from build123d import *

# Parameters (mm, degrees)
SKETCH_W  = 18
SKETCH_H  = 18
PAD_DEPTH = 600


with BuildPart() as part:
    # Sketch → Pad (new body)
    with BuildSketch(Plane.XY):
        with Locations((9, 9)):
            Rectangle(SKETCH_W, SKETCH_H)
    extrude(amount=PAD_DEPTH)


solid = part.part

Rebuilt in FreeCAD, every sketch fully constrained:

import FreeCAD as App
import Part
import Sketcher

doc = App.newDocument("Part")
body = doc.addObject("PartDesign::Body", "Body")

# Sketch on XY plane
sketch1 = doc.addObject("Sketcher::SketchObject", "Sketch")
body.addObject(sketch1)
sketch1.AttachmentSupport = (doc.XY_Plane, [""])
sketch1.MapMode = "FlatFace"
sketch1.addGeometry([
    Part.LineSegment(App.Vector(0, 18, 0), App.Vector(0, 0, 0)),
    Part.LineSegment(App.Vector(0, 0, 0), App.Vector(18, 0, 0)),
    Part.LineSegment(App.Vector(18, 0, 0), App.Vector(18, 18, 0)),
    Part.LineSegment(App.Vector(18, 18, 0), App.Vector(0, 18, 0)),
], False)
sketch1.addConstraint([
    Sketcher.Constraint("Coincident", 0, 2, 1, 1),
    Sketcher.Constraint("Coincident", 1, 2, 2, 1),
    Sketcher.Constraint("Coincident", 2, 2, 3, 1),
    Sketcher.Constraint("Coincident", 3, 2, 0, 1),
    Sketcher.Constraint("Vertical", 0),
    Sketcher.Constraint("Horizontal", 1),
    Sketcher.Constraint("Vertical", 2),
    Sketcher.Constraint("Horizontal", 3),
    Sketcher.Constraint("Coincident", 0, 2, -1, 1),
    Sketcher.Constraint("Equal", 3, 0),
    Sketcher.Constraint("DistanceX", 1, 1, 1, 2, 18.0),
])
pad1 = doc.addObject("PartDesign::Pad", "Pad")
body.addObject(pad1)
pad1.Profile = sketch1
pad1.Length = 600

doc.recompute()
